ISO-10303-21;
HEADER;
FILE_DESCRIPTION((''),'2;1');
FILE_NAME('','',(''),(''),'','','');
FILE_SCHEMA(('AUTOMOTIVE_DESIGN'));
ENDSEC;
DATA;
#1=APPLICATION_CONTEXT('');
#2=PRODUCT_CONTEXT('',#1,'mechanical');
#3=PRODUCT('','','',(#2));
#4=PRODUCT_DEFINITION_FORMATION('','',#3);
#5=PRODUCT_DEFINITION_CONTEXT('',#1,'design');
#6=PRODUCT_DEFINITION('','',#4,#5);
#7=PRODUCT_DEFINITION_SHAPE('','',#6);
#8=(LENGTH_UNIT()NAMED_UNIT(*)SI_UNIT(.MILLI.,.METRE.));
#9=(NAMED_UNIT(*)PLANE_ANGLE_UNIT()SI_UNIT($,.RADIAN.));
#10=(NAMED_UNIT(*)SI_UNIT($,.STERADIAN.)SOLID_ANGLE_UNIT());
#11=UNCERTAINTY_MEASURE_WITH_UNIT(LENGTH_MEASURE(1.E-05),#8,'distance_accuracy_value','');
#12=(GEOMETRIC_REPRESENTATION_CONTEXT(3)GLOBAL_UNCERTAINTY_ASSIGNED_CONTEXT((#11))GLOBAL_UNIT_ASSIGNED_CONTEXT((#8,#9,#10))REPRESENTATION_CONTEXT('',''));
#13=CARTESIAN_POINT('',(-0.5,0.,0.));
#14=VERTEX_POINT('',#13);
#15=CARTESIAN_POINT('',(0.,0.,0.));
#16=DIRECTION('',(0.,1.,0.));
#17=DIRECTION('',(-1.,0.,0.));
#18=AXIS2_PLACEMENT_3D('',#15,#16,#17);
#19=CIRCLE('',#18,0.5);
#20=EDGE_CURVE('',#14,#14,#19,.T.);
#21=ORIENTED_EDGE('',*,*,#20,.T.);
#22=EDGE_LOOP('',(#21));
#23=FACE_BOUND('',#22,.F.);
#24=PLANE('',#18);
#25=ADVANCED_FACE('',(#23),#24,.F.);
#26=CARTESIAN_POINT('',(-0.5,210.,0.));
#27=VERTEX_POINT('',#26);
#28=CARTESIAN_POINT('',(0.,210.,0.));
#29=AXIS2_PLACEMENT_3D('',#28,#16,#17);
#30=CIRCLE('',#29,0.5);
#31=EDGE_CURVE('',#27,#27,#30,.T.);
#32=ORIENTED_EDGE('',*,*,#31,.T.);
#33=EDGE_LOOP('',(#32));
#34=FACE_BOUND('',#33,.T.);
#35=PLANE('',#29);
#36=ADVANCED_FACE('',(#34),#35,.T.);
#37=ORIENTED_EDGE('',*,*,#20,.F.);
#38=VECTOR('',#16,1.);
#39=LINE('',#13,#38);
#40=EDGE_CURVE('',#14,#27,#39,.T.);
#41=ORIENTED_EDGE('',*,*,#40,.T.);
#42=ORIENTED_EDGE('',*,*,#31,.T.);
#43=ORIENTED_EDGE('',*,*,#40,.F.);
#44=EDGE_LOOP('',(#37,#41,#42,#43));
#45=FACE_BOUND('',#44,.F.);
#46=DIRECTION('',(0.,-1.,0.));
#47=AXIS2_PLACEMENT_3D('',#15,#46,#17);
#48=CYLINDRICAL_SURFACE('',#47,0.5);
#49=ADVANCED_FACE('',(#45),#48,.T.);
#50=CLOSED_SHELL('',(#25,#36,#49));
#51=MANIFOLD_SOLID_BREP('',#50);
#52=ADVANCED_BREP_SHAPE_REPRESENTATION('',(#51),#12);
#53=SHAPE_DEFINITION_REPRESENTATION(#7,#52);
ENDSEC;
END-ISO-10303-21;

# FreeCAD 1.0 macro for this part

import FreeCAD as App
import Part
import Sketcher
Q = App.Units.Quantity

doc = App.newDocument("Part")
body = doc.addObject("PartDesign::Body", "Body")

# Sketch on XZ plane
sketch1 = doc.addObject("Sketcher::SketchObject", "Sketch")
body.addObject(sketch1)
sketch1.AttachmentSupport = (doc.XZ_Plane, [""])
sketch1.MapMode = "FlatFace"
sketch1.addGeometry(Part.Circle(App.Vector(0, 0, 0), App.Vector(0, 0, 1), 0.5), False)
sketch1.addConstraint([
    Sketcher.Constraint("Coincident", 0, 3, -1, 1),
    Sketcher.Constraint("Diameter", 0, Q("1 mm")),
])
pad1 = doc.addObject("PartDesign::Pad", "Pad")
body.addObject(pad1)
pad1.Profile = sketch1
pad1.Length = 210
pad1.Reversed = True

doc.recompute()
